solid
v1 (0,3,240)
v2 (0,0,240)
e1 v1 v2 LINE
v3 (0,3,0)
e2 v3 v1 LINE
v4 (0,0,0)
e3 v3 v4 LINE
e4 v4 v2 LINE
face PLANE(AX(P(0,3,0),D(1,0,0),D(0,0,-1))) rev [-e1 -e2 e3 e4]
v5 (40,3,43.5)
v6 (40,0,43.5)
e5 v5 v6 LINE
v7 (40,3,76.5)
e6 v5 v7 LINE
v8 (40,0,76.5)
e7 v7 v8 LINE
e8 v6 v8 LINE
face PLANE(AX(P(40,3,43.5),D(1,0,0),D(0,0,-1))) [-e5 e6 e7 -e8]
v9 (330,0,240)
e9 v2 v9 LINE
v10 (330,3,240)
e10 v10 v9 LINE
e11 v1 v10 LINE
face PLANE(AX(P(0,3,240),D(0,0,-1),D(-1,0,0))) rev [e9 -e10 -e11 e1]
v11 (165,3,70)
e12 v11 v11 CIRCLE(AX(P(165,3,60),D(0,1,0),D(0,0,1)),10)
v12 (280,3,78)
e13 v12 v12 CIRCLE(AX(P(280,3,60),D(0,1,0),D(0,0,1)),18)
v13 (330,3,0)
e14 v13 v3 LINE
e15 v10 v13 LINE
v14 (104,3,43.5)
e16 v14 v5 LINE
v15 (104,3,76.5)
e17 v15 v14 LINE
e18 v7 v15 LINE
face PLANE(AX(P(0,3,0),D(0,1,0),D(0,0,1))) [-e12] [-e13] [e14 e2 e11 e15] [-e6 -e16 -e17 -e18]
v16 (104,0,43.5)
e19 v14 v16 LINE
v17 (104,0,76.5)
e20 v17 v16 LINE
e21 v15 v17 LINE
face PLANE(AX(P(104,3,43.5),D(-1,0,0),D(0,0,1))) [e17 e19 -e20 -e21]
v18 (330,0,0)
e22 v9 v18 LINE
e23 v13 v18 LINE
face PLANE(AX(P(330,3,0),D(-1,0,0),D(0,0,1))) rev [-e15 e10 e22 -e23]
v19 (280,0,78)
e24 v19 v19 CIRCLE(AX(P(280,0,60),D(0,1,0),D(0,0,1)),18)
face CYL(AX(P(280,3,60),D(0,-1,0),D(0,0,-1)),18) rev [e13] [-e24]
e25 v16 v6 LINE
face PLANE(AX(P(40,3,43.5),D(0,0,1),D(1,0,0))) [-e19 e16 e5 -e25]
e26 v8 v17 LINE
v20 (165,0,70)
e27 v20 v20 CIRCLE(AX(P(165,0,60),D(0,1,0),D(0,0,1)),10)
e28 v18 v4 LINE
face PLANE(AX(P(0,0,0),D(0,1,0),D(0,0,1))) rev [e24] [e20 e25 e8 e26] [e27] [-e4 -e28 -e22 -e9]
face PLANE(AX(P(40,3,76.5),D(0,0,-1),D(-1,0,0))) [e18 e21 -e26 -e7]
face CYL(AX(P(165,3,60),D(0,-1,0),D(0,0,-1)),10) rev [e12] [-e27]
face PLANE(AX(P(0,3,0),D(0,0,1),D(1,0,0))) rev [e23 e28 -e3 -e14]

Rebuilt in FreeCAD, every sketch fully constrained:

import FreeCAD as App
import Part
import Sketcher
from FreeCAD import Vector
Q = App.Units.Quantity

doc = App.newDocument("Part")
body = doc.addObject("PartDesign::Body", "Body")

sketch1 = body.newObject("Sketcher::SketchObject", "Sketch")
sketch1.AttachmentSupport = (doc.getObject("XZ_Plane"), [""])
sketch1.MapMode = "FlatFace"
sketch1.addGeometry(Part.LineSegment(Vector(0, 0, 0), Vector(0, 240, 0)), False)
sketch1.addGeometry(Part.LineSegment(Vector(0, 240, 0), Vector(330, 240, 0)), False)
sketch1.addGeometry(Part.LineSegment(Vector(330, 240, 0), Vector(330, 0, 0)), False)
sketch1.addGeometry(Part.LineSegment(Vector(330, 0, 0), Vector(0, 0, 0)), False)
sketch1.addGeometry(Part.LineSegment(Vector(104, 76, 0), Vector(40, 76, 0)), False)
sketch1.addGeometry(Part.LineSegment(Vector(40, 76, 0), Vector(40, 44, 0)), False)
sketch1.addGeometry(Part.LineSegment(Vector(40, 44, 0), Vector(104, 44, 0)), False)
sketch1.addGeometry(Part.LineSegment(Vector(104, 44, 0), Vector(104, 76, 0)), False)
sketch1.addGeometry(Part.Circle(Vector(165, 60, 0), Vector(0, 0, 1), 10), False)
sketch1.addGeometry(Part.Circle(Vector(280, 60, 0), Vector(0, 0, 1), 18), False)
sketch1.addConstraint(Sketcher.Constraint("Coincident", 0, 2, 1, 1))
sketch1.addConstraint(Sketcher.Constraint("Coincident", 1, 2, 2, 1))
sketch1.addConstraint(Sketcher.Constraint("Coincident", 2, 2, 3, 1))
sketch1.addConstraint(Sketcher.Constraint("Coincident", 3, 2, 0, 1))
sketch1.addConstraint(Sketcher.Constraint("Coincident", 4, 2, 5, 1))
sketch1.addConstraint(Sketcher.Constraint("Coincident", 5, 2, 6, 1))
sketch1.addConstraint(Sketcher.Constraint("Coincident", 6, 2, 7, 1))
sketch1.addConstraint(Sketcher.Constraint("Coincident", 7, 2, 4, 1))
sketch1.addConstraint(Sketcher.Constraint("Vertical", 0))
sketch1.addConstraint(Sketcher.Constraint("Horizontal", 1))
sketch1.addConstraint(Sketcher.Constraint("Vertical", 2))
sketch1.addConstraint(Sketcher.Constraint("Horizontal", 3))
sketch1.addConstraint(Sketcher.Constraint("Horizontal", 4))
sketch1.addConstraint(Sketcher.Constraint("Vertical", 5))
sketch1.addConstraint(Sketcher.Constraint("Horizontal", 6))
sketch1.addConstraint(Sketcher.Constraint("Vertical", 7))
sketch1.addConstraint(Sketcher.Constraint("Coincident", 3, 2, -1, 1))
sketch1.addConstraint(Sketcher.Constraint("Horizontal", 8, 3, 9, 3))
sketch1.addConstraint(Sketcher.Constraint("Diameter", 8, Q("20 mm")))
sketch1.addConstraint(Sketcher.Constraint("Diameter", 9, Q("36 mm")))
sketch1.addConstraint(Sketcher.Constraint("DistanceX", 1, 1, 1, 2, Q("330 mm")))
sketch1.addConstraint(Sketcher.Constraint("DistanceX", 4, 2, 4, 1, Q("64 mm")))
sketch1.addConstraint(Sketcher.Constraint("DistanceY", 0, 1, 0, 2, Q("240 mm")))
sketch1.addConstraint(Sketcher.Constraint("DistanceY", 5, 2, 5, 1, Q("33 mm")))
sketch1.addConstraint(Sketcher.Constraint("DistanceX", -1, 1, 8, 3, Q("165 mm")))
sketch1.addConstraint(Sketcher.Constraint("DistanceY", -1, 1, 8, 3, Q("60 mm")))
sketch1.addConstraint(Sketcher.Constraint("DistanceX", -1, 1, 9, 3, Q("280 mm")))
sketch1.addConstraint(Sketcher.Constraint("DistanceX", -1, 1, 4, 2, Q("40 mm")))
sketch1.addConstraint(Sketcher.Constraint("DistanceY", -1, 1, 4, 2, Q("76.5 mm")))
pad1 = body.newObject("PartDesign::Pad", "Pad")
pad1.Profile = sketch1
pad1.Length = 3
pad1.Reversed = True

doc.recompute()
